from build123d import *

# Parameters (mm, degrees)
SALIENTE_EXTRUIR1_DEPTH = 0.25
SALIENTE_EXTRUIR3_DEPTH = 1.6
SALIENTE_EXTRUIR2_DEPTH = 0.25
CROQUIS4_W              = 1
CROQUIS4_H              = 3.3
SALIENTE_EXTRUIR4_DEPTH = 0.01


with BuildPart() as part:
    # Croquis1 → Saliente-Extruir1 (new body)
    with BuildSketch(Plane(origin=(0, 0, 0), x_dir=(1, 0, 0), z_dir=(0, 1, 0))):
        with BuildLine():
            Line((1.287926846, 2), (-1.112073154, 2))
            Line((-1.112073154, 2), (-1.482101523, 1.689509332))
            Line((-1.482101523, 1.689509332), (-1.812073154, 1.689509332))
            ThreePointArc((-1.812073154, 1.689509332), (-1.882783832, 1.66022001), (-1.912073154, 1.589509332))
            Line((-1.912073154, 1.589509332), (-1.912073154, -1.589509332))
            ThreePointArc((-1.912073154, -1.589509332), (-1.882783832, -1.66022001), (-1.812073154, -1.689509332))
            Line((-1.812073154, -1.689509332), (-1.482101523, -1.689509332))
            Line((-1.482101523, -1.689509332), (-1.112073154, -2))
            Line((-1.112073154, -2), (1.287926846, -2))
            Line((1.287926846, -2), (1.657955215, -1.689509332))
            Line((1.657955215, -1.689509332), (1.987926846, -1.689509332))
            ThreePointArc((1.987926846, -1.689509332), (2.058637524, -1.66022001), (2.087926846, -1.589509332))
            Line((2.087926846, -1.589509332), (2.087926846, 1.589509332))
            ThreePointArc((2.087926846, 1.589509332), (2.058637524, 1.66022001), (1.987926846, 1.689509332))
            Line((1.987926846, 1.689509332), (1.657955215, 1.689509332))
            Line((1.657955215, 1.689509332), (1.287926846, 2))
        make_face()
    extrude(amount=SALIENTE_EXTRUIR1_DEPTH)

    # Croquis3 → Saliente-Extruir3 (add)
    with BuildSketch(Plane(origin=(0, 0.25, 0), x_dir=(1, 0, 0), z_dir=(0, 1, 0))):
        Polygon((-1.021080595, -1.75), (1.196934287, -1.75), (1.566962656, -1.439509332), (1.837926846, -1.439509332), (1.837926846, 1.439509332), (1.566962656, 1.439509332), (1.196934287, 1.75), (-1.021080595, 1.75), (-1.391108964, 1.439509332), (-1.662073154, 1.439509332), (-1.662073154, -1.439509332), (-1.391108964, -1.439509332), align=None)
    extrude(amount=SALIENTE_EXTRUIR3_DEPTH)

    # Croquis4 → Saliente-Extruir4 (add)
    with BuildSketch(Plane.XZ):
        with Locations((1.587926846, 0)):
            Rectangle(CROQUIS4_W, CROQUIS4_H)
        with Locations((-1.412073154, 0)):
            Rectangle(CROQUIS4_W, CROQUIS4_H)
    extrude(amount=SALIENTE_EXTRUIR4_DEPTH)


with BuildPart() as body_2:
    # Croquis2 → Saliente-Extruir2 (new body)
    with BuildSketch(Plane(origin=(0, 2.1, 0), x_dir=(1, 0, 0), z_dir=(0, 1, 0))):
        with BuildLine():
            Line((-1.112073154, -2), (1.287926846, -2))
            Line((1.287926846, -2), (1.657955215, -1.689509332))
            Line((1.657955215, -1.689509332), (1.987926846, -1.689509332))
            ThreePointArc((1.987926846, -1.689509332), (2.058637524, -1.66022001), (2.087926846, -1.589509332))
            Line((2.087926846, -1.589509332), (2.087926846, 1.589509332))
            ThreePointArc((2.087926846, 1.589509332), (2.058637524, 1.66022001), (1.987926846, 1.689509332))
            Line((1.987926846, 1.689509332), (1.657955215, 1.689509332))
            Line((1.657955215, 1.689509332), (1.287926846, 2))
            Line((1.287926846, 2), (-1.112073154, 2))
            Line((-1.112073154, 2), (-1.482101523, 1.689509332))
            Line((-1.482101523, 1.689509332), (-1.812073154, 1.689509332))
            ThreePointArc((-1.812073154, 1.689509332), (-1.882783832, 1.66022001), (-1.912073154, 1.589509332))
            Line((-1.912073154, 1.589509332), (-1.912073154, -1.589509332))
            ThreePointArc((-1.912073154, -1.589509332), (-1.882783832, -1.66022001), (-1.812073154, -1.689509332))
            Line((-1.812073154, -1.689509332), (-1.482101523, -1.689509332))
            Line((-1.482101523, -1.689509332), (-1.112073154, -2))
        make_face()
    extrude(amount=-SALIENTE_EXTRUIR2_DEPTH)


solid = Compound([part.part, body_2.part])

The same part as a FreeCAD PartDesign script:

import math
import FreeCAD as App
import Part
import Sketcher
Q = App.Units.Quantity

doc = App.newDocument("Part")
body = doc.addObject("PartDesign::Body", "Body")

# Sketch on XZ plane
sketch1 = body.newObject("Sketcher::SketchObject", "Sketch")
sketch1.AttachmentSupport = (doc.getObject("XZ_Plane"), [""])
sketch1.MapMode = "FlatFace"
sketch1.addGeometry(Part.LineSegment(App.Vector(1.29, -2, 0), App.Vector(-1.11, -2, 0)), False)
sketch1.addGeometry(Part.LineSegment(App.Vector(-1.11, -2, 0), App.Vector(-1.48, -1.69, 0)), False)
sketch1.addGeometry(Part.LineSegment(App.Vector(-1.48, -1.69, 0), App.Vector(-1.81, -1.69, 0)), False)
sketch1.addGeometry(Part.ArcOfCircle(Part.Circle(App.Vector(-1.81, -1.59, 0), App.Vector(0, 0, 1), 0.1), math.radians(180), math.radians(270)), False)
sketch1.addGeometry(Part.LineSegment(App.Vector(-1.91, -1.59, 0), App.Vector(-1.91, 1.59, 0)), False)
sketch1.addGeometry(Part.ArcOfCircle(Part.Circle(App.Vector(-1.81, 1.59, 0), App.Vector(0, 0, 1), 0.1), math.radians(90), math.radians(180)), False)
sketch1.addGeometry(Part.LineSegment(App.Vector(-1.81, 1.69, 0), App.Vector(-1.48, 1.69, 0)), False)
sketch1.addGeometry(Part.LineSegment(App.Vector(-1.48, 1.69, 0), App.Vector(-1.11, 2, 0)), False)
sketch1.addGeometry(Part.LineSegment(App.Vector(-1.11, 2, 0), App.Vector(1.29, 2, 0)), False)
sketch1.addGeometry(Part.LineSegment(App.Vector(1.29, 2, 0), App.Vector(1.66, 1.69, 0)), False)
sketch1.addGeometry(Part.LineSegment(App.Vector(1.66, 1.69, 0), App.Vector(1.99, 1.69, 0)), False)
sketch1.addGeometry(Part.ArcOfCircle(Part.Circle(App.Vector(1.99, 1.59, 0), App.Vector(0, 0, 1), 0.1), math.radians(0), math.radians(90)), False)
sketch1.addGeometry(Part.LineSegment(App.Vector(2.09, 1.59, 0), App.Vector(2.09, -1.59, 0)), False)
sketch1.addGeometry(Part.ArcOfCircle(Part.Circle(App.Vector(1.99, -1.59, 0), App.Vector(0, 0, 1), 0.1), math.radians(-90), math.radians(0)), False)
sketch1.addGeometry(Part.LineSegment(App.Vector(1.99, -1.69, 0), App.Vector(1.66, -1.69, 0)), False)
sketch1.addGeometry(Part.LineSegment(App.Vector(1.66, -1.69, 0), App.Vector(1.29, -2, 0)), False)
sketch1.addConstraint(Sketcher.Constraint("Coincident", 0, 2, 1, 1))
sketch1.addConstraint(Sketcher.Constraint("Coincident", 1, 2, 2, 1))
sketch1.addConstraint(Sketcher.Constraint("Tangent", 2, 2, 3, 2))
sketch1.addConstraint(Sketcher.Constraint("Tangent", 3, 1, 4, 1))
sketch1.addConstraint(Sketcher.Constraint("Tangent", 4, 2, 5, 2))
sketch1.addConstraint(Sketcher.Constraint("Tangent", 5, 1, 6, 1))
sketch1.addConstraint(Sketcher.Constraint("Coincident", 6, 2, 7, 1))
sketch1.addConstraint(Sketcher.Constraint("Coincident", 7, 2, 8, 1))
sketch1.addConstraint(Sketcher.Constraint("Coincident", 8, 2, 9, 1))
sketch1.addConstraint(Sketcher.Constraint("Coincident", 9, 2, 10, 1))
sketch1.addConstraint(Sketcher.Constraint("Tangent", 10, 2, 11, 2))
sketch1.addConstraint(Sketcher.Constraint("Tangent", 11, 1, 12, 1))
sketch1.addConstraint(Sketcher.Constraint("Tangent", 12, 2, 13, 2))
sketch1.addConstraint(Sketcher.Constraint("Tangent", 13, 1, 14, 1))
sketch1.addConstraint(Sketcher.Constraint("Coincident", 14, 2, 15, 1))
sketch1.addConstraint(Sketcher.Constraint("Coincident", 15, 2, 0, 1))
sketch1.addConstraint(Sketcher.Constraint("Horizontal", 0))
sketch1.addConstraint(Sketcher.Constraint("Horizontal", 2))
sketch1.addConstraint(Sketcher.Constraint("Vertical", 4))
sketch1.addConstraint(Sketcher.Constraint("Horizontal", 6))
sketch1.addConstraint(Sketcher.Constraint("Horizontal", 8))
sketch1.addConstraint(Sketcher.Constraint("Horizontal", 10))
sketch1.addConstraint(Sketcher.Constraint("Vertical", 12))
sketch1.addConstraint(Sketcher.Constraint("Horizontal", 14))
sketch1.addConstraint(Sketcher.Constraint("Equal", 3, 5))
sketch1.addConstraint(Sketcher.Constraint("Equal", 5, 11))
sketch1.addConstraint(Sketcher.Constraint("Equal", 11, 13))
sketch1.addConstraint(Sketcher.Constraint("Symmetric", 1, 2, 6, 2, -1))
sketch1.addConstraint(Sketcher.Constraint("Symmetric", 0, 2, 7, 2, -1))
sketch1.addConstraint(Sketcher.Constraint("Symmetric", 9, 2, 14, 2, -1))
sketch1.addConstraint(Sketcher.Constraint("Parallel", 1, 9))
sketch1.addConstraint(Sketcher.Constraint("Parallel", 7, 15))
sketch1.addConstraint(Sketcher.Constraint("Horizontal", 5, 3, 11, 3))
sketch1.addConstraint(Sketcher.Constraint("Equal", 6, 10))
sketch1.addConstraint(Sketcher.Constraint("Radius", 3, Q("0.1 mm")))
sketch1.addConstraint(Sketcher.Constraint("Angle", 1, Q("140 deg")))
sketch1.addConstraint(Sketcher.Constraint("DistanceX", 0, 2, 0, 1, Q("2.4 mm")))
sketch1.addConstraint(Sketcher.Constraint("DistanceY", 0, 2, -1, 1, Q("2 mm")))
sketch1.addConstraint(Sketcher.Constraint("DistanceX", 5, 3, 11, 3, Q("3.8 mm")))
sketch1.addConstraint(Sketcher.Constraint("DistanceX", 2, 2, 2, 1, Q("0.329972 mm")))
sketch1.addConstraint(Sketcher.Constraint("DistanceX", 1, 2, -1, 1, Q("1.482102 mm")))
pad1 = body.newObject("PartDesign::Pad", "Pad")
pad1.Profile = sketch1
pad1.Length = 0.25
pad1.Reversed = True

# Sketch on XZ plane
sketch2 = body.newObject("Sketcher::SketchObject", "Sketch001")
sketch2.AttachmentSupport = (doc.getObject("XZ_Plane"), [""])
sketch2.MapMode = "FlatFace"
sketch2.AttachmentOffset = App.Placement(App.Vector(0, 0, -0.25), App.Rotation())
sketch2.addGeometry(Part.LineSegment(App.Vector(-1.02, 1.75, 0), App.Vector(1.2, 1.75, 0)), False)
sketch2.addGeometry(Part.LineSegment(App.Vector(1.2, 1.75, 0), App.Vector(1.57, 1.44, 0)), False)
sketch2.addGeometry(Part.LineSegment(App.Vector(1.57, 1.44, 0), App.Vector(1.84, 1.44, 0)), False)
sketch2.addGeometry(Part.LineSegment(App.Vector(1.84, 1.44, 0), App.Vector(1.84, -1.44, 0)), False)
sketch2.addGeometry(Part.LineSegment(App.Vector(1.84, -1.44, 0), App.Vector(1.57, -1.44, 0)), False)
sketch2.addGeometry(Part.LineSegment(App.Vector(1.57, -1.44, 0), App.Vector(1.2, -1.75, 0)), False)
sketch2.addGeometry(Part.LineSegment(App.Vector(1.2, -1.75, 0), App.Vector(-1.02, -1.75, 0)), False)
sketch2.addGeometry(Part.LineSegment(App.Vector(-1.02, -1.75, 0), App.Vector(-1.39, -1.44, 0)), False)
sketch2.addGeometry(Part.LineSegment(App.Vector(-1.39, -1.44, 0), App.Vector(-1.66, -1.44, 0)), False)
sketch2.addGeometry(Part.LineSegment(App.Vector(-1.66, -1.44, 0), App.Vector(-1.66, 1.44, 0)), False)
sketch2.addGeometry(Part.LineSegment(App.Vector(-1.66, 1.44, 0), App.Vector(-1.39, 1.44, 0)), False)
sketch2.addGeometry(Part.LineSegment(App.Vector(-1.39, 1.44, 0), App.Vector(-1.02, 1.75, 0)), False)
sketch2.addConstraint(Sketcher.Constraint("Coincident", 0, 2, 1, 1))
sketch2.addConstraint(Sketcher.Constraint("Coincident", 1, 2, 2, 1))
sketch2.addConstraint(Sketcher.Constraint("Coincident", 2, 2, 3, 1))
sketch2.addConstraint(Sketcher.Constraint("Coincident", 3, 2, 4, 1))
sketch2.addConstraint(Sketcher.Constraint("Coincident", 4, 2, 5, 1))
sketch2.addConstraint(Sketcher.Constraint("Coincident", 5, 2, 6, 1))
sketch2.addConstraint(Sketcher.Constraint("Coincident", 6, 2, 7, 1))
sketch2.addConstraint(Sketcher.Constraint("Coincident", 7, 2, 8, 1))
sketch2.addConstraint(Sketcher.Constraint("Coincident", 8, 2, 9, 1))
sketch2.addConstraint(Sketcher.Constraint("Coincident", 9, 2, 10, 1))
sketch2.addConstraint(Sketcher.Constraint("Coincident", 10, 2, 11, 1))
sketch2.addConstraint(Sketcher.Constraint("Coincident", 11, 2, 0, 1))
sketch2.addConstraint(Sketcher.Constraint("Horizontal", 0))
sketch2.addConstraint(Sketcher.Constraint("Horizontal", 2))
sketch2.addConstraint(Sketcher.Constraint("Vertical", 3))
sketch2.addConstraint(Sketcher.Constraint("Horizontal", 4))
sketch2.addConstraint(Sketcher.Constraint("Horizontal", 6))
sketch2.addConstraint(Sketcher.Constraint("Horizontal", 8))
sketch2.addConstraint(Sketcher.Constraint("Vertical", 9))
sketch2.addConstraint(Sketcher.Constraint("Horizontal", 10))
sketch2.addConstraint(Sketcher.Constraint("Symmetric", 1, 2, 4, 2, -1))
sketch2.addConstraint(Sketcher.Constraint("Symmetric", 0, 2, 5, 2, -1))
sketch2.addConstraint(Sketcher.Constraint("Symmetric", 7, 2, 10, 2, -1))
sketch2.addConstraint(Sketcher.Constraint("Parallel", 1, 7))
sketch2.addConstraint(Sketcher.Constraint("Parallel", 5, 11))
sketch2.addConstraint(Sketcher.Constraint("Horizontal", 4, 2, 7, 2))
sketch2.addConstraint(Sketcher.Constraint("Equal", 4, 8))
sketch2.addConstraint(Sketcher.Constraint("Angle", 1, Q("-40 deg")))
sketch2.addConstraint(Sketcher.Constraint("DistanceY", 5, 2, 0, 2, Q("3.5 mm")))
sketch2.addConstraint(Sketcher.Constraint("DistanceX", 8, 2, 3, 2, Q("3.5 mm")))
sketch2.addConstraint(Sketcher.Constraint("DistanceY", 3, 2, 3, 1, Q("2.879019 mm")))
sketch2.addConstraint(Sketcher.Constraint("DistanceX", 0, 1, 0, 2, Q("2.218015 mm")))
sketch2.addConstraint(Sketcher.Constraint("DistanceX", 6, 2, -1, 1, Q("1.021081 mm")))
pad2 = body.newObject("PartDesign::Pad", "Pad001")
pad2.Profile = sketch2
pad2.Length = 1.6
pad2.Reversed = True

# Sketch on XZ plane
sketch3 = body.newObject("Sketcher::SketchObject", "Sketch002")
sketch3.AttachmentSupport = (doc.getObject("XZ_Plane"), [""])
sketch3.MapMode = "FlatFace"
sketch3.addGeometry(Part.LineSegment(App.Vector(1.1, 1.6, 0), App.Vector(1.1, -1.6, 0)), False)
sketch3.addGeometry(Part.LineSegment(App.Vector(1.1, -1.6, 0), App.Vector(2.1, -1.6, 0)), False)
sketch3.addGeometry(Part.LineSegment(App.Vector(2.1, -1.6, 0), App.Vector(2.1, 1.6, 0)), False)
sketch3.addGeometry(Part.LineSegment(App.Vector(2.1, 1.6, 0), App.Vector(1.1, 1.6, 0)), False)
sketch3.addGeometry(Part.LineSegment(App.Vector(-1.9, 1.6, 0), App.Vector(-1.9, -1.6, 0)), False)
sketch3.addGeometry(Part.LineSegment(App.Vector(-1.9, -1.6, 0), App.Vector(-0.9, -1.6, 0)), False)
sketch3.addGeometry(Part.LineSegment(App.Vector(-0.9, -1.6, 0), App.Vector(-0.9, 1.6, 0)), False)
sketch3.addGeometry(Part.LineSegment(App.Vector(-0.9, 1.6, 0), App.Vector(-1.9, 1.6, 0)), False)
sketch3.addConstraint(Sketcher.Constraint("Coincident", 0, 2, 1, 1))
sketch3.addConstraint(Sketcher.Constraint("Coincident", 1, 2, 2, 1))
sketch3.addConstraint(Sketcher.Constraint("Coincident", 2, 2, 3, 1))
sketch3.addConstraint(Sketcher.Constraint("Coincident", 3, 2, 0, 1))
sketch3.addConstraint(Sketcher.Constraint("Coincident", 4, 2, 5, 1))
sketch3.addConstraint(Sketcher.Constraint("Coincident", 5, 2, 6, 1))
sketch3.addConstraint(Sketcher.Constraint("Coincident", 6, 2, 7, 1))
sketch3.addConstraint(Sketcher.Constraint("Coincident", 7, 2, 4, 1))
sketch3.addConstraint(Sketcher.Constraint("Vertical", 0))
sketch3.addConstraint(Sketcher.Constraint("Horizontal", 1))
sketch3.addConstraint(Sketcher.Constraint("Vertical", 2))
sketch3.addConstraint(Sketcher.Constraint("Horizontal", 3))
sketch3.addConstraint(Sketcher.Constraint("Vertical", 4))
sketch3.addConstraint(Sketcher.Constraint("Horizontal", 5))
sketch3.addConstraint(Sketcher.Constraint("Vertical", 6))
sketch3.addConstraint(Sketcher.Constraint("Horizontal", 7))
sketch3.addConstraint(Sketcher.Constraint("Horizontal", 1, 2, 4, 2))
sketch3.addConstraint(Sketcher.Constraint("Horizontal", 3, 2, 6, 2))
sketch3.addConstraint(Sketcher.Constraint("Equal", 3, 5))
sketch3.addConstraint(Sketcher.Constraint("DistanceX", 1, 1, 1, 2, Q("1 mm")))
sketch3.addConstraint(Sketcher.Constraint("DistanceY", 0, 2, 0, 1, Q("3.3 mm")))
sketch3.addConstraint(Sketcher.Constraint("DistanceX", 4, 2, 0, 2, Q("3 mm")))
sketch3.addConstraint(Sketcher.Constraint("DistanceY", 0, 2, -1, 1, Q("1.65 mm")))
sketch3.addConstraint(Sketcher.Constraint("DistanceX", -1, 1, 0, 2, Q("1.087927 mm")))
pad3 = body.newObject("PartDesign::Pad", "Pad002")
pad3.Profile = sketch3
pad3.Length = 0.01
body2 = doc.addObject("PartDesign::Body", "Body001")

# Sketch on XZ plane
sketch4 = body2.newObject("Sketcher::SketchObject", "Sketch003")
sketch4.AttachmentSupport = (doc.getObject("XZ_Plane001"), [""])
sketch4.MapMode = "FlatFace"
sketch4.AttachmentOffset = App.Placement(App.Vector(0, 0, -2.1), App.Rotation())
sketch4.addGeometry(Part.LineSegment(App.Vector(-1.11, 2, 0), App.Vector(1.29, 2, 0)), False)
sketch4.addGeometry(Part.LineSegment(App.Vector(1.29, 2, 0), App.Vector(1.66, 1.69, 0)), False)
sketch4.addGeometry(Part.LineSegment(App.Vector(1.66, 1.69, 0), App.Vector(1.99, 1.69, 0)), False)
sketch4.addGeometry(Part.ArcOfCircle(Part.Circle(App.Vector(1.99, 1.59, 0), App.Vector(0, 0, 1), 0.1), math.radians(0), math.radians(90)), False)
sketch4.addGeometry(Part.LineSegment(App.Vector(2.09, 1.59, 0), App.Vector(2.09, -1.59, 0)), False)
sketch4.addGeometry(Part.ArcOfCircle(Part.Circle(App.Vector(1.99, -1.59, 0), App.Vector(0, 0, 1), 0.1), math.radians(-90), math.radians(0)), False)
sketch4.addGeometry(Part.LineSegment(App.Vector(1.99, -1.69, 0), App.Vector(1.66, -1.69, 0)), False)
sketch4.addGeometry(Part.LineSegment(App.Vector(1.66, -1.69, 0), App.Vector(1.29, -2, 0)), False)
sketch4.addGeometry(Part.LineSegment(App.Vector(1.29, -2, 0), App.Vector(-1.11, -2, 0)), False)
sketch4.addGeometry(Part.LineSegment(App.Vector(-1.11, -2, 0), App.Vector(-1.48, -1.69, 0)), False)
sketch4.addGeometry(Part.LineSegment(App.Vector(-1.48, -1.69, 0), App.Vector(-1.81, -1.69, 0)), False)
sketch4.addGeometry(Part.ArcOfCircle(Part.Circle(App.Vector(-1.81, -1.59, 0), App.Vector(0, 0, 1), 0.1), math.radians(180), math.radians(270)), False)
sketch4.addGeometry(Part.LineSegment(App.Vector(-1.91, -1.59, 0), App.Vector(-1.91, 1.59, 0)), False)
sketch4.addGeometry(Part.ArcOfCircle(Part.Circle(App.Vector(-1.81, 1.59, 0), App.Vector(0, 0, 1), 0.1), math.radians(90), math.radians(180)), False)
sketch4.addGeometry(Part.LineSegment(App.Vector(-1.81, 1.69, 0), App.Vector(-1.48, 1.69, 0)), False)
sketch4.addGeometry(Part.LineSegment(App.Vector(-1.48, 1.69, 0), App.Vector(-1.11, 2, 0)), False)
sketch4.addConstraint(Sketcher.Constraint("Coincident", 0, 2, 1, 1))
sketch4.addConstraint(Sketcher.Constraint("Coincident", 1, 2, 2, 1))
sketch4.addConstraint(Sketcher.Constraint("Tangent", 2, 2, 3, 2))
sketch4.addConstraint(Sketcher.Constraint("Tangent", 3, 1, 4, 1))
sketch4.addConstraint(Sketcher.Constraint("Tangent", 4, 2, 5, 2))
sketch4.addConstraint(Sketcher.Constraint("Tangent", 5, 1, 6, 1))
sketch4.addConstraint(Sketcher.Constraint("Coincident", 6, 2, 7, 1))
sketch4.addConstraint(Sketcher.Constraint("Coincident", 7, 2, 8, 1))
sketch4.addConstraint(Sketcher.Constraint("Coincident", 8, 2, 9, 1))
sketch4.addConstraint(Sketcher.Constraint("Coincident", 9, 2, 10, 1))
sketch4.addConstraint(Sketcher.Constraint("Tangent", 10, 2, 11, 2))
sketch4.addConstraint(Sketcher.Constraint("Tangent", 11, 1, 12, 1))
sketch4.addConstraint(Sketcher.Constraint("Tangent", 12, 2, 13, 2))
sketch4.addConstraint(Sketcher.Constraint("Tangent", 13, 1, 14, 1))
sketch4.addConstraint(Sketcher.Constraint("Coincident", 14, 2, 15, 1))
sketch4.addConstraint(Sketcher.Constraint("Coincident", 15, 2, 0, 1))
sketch4.addConstraint(Sketcher.Constraint("Horizontal", 0))
sketch4.addConstraint(Sketcher.Constraint("Horizontal", 2))
sketch4.addConstraint(Sketcher.Constraint("Vertical", 4))
sketch4.addConstraint(Sketcher.Constraint("Horizontal", 6))
sketch4.addConstraint(Sketcher.Constraint("Horizontal", 8))
sketch4.addConstraint(Sketcher.Constraint("Horizontal", 10))
sketch4.addConstraint(Sketcher.Constraint("Vertical", 12))
sketch4.addConstraint(Sketcher.Constraint("Horizontal", 14))
sketch4.addConstraint(Sketcher.Constraint("Equal", 3, 5))
sketch4.addConstraint(Sketcher.Constraint("Equal", 5, 11))
sketch4.addConstraint(Sketcher.Constraint("Equal", 11, 13))
sketch4.addConstraint(Sketcher.Constraint("Symmetric", 1, 2, 6, 2, -1))
sketch4.addConstraint(Sketcher.Constraint("Symmetric", 0, 2, 7, 2, -1))
sketch4.addConstraint(Sketcher.Constraint("Symmetric", 9, 2, 14, 2, -1))
sketch4.addConstraint(Sketcher.Constraint("Parallel", 1, 9))
sketch4.addConstraint(Sketcher.Constraint("Parallel", 7, 15))
sketch4.addConstraint(Sketcher.Constraint("Horizontal", 5, 3, 11, 3))
sketch4.addConstraint(Sketcher.Constraint("Equal", 6, 10))
sketch4.addConstraint(Sketcher.Constraint("Radius", 3, Q("0.1 mm")))
sketch4.addConstraint(Sketcher.Constraint("Angle", 1, Q("-40 deg")))
sketch4.addConstraint(Sketcher.Constraint("DistanceX", 0, 1, 0, 2, Q("2.4 mm")))
sketch4.addConstraint(Sketcher.Constraint("DistanceY", -1, 1, 0, 2, Q("2 mm")))
sketch4.addConstraint(Sketcher.Constraint("DistanceX", 11, 3, 5, 3, Q("3.8 mm")))
sketch4.addConstraint(Sketcher.Constraint("DistanceX", 2, 1, 2, 2, Q("0.329972 mm")))
sketch4.addConstraint(Sketcher.Constraint("DistanceX", 9, 2, -1, 1, Q("1.482102 mm")))
pad4 = body2.newObject("PartDesign::Pad", "Pad003")
pad4.Profile = sketch4
pad4.Length = 0.25

doc.recompute()
